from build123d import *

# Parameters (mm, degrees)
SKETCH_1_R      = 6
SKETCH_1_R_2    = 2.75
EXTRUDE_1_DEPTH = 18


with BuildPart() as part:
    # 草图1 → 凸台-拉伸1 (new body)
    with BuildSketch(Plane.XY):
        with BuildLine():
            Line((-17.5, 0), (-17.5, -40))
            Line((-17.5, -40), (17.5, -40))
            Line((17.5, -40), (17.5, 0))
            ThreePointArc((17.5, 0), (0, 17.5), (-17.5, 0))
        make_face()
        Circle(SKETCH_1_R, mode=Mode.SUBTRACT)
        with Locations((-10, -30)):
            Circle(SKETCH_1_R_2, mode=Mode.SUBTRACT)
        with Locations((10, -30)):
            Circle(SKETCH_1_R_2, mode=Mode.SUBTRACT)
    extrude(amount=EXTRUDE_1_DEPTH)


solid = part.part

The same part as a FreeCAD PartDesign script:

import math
import FreeCAD as App
import Part
import Sketcher

V = App.Vector
Q = App.Units.Quantity

doc = App.newDocument("Part")
body = doc.addObject("PartDesign::Body", "Body")

# Sketch on XY plane
sketch1 = body.newObject("Sketcher::SketchObject", "Sketch")
sketch1.AttachmentSupport = (doc.getObject("XY_Plane"), [""])
sketch1.MapMode = "FlatFace"
sketch1.addGeometry(Part.LineSegment(V(-17.5, 0, 0), V(-17.5, -40, 0)), False)
sketch1.addGeometry(Part.LineSegment(V(-17.5, -40, 0), V(17.5, -40, 0)), False)
sketch1.addGeometry(Part.LineSegment(V(17.5, -40, 0), V(17.5, 0, 0)), False)
sketch1.addGeometry(Part.ArcOfCircle(Part.Circle(V(0, 0, 0), V(0, 0, 1), 17.5), math.radians(0), math.radians(180)), False)
sketch1.addGeometry(Part.Circle(V(-10, -30, 0), V(0, 0, 1), 2.75), False)
sketch1.addGeometry(Part.Circle(V(10, -30, 0), V(0, 0, 1), 2.75), False)
sketch1.addGeometry(Part.Circle(V(0, 0, 0), V(0, 0, 1), 6), False)
sketch1.addConstraint(Sketcher.Constraint("Coincident", 0, 2, 1, 1))
sketch1.addConstraint(Sketcher.Constraint("Coincident", 1, 2, 2, 1))
sketch1.addConstraint(Sketcher.Constraint("Tangent", 2, 2, 3, 1))
sketch1.addConstraint(Sketcher.Constraint("Tangent", 3, 2, 0, 1))
sketch1.addConstraint(Sketcher.Constraint("Vertical", 0))
sketch1.addConstraint(Sketcher.Constraint("Horizontal", 1))
sketch1.addConstraint(Sketcher.Constraint("Vertical", 2))
sketch1.addConstraint(Sketcher.Constraint("Coincident", 3, 3, -1, 1))
sketch1.addConstraint(Sketcher.Constraint("Coincident", 6, 3, -1, 1))
sketch1.addConstraint(Sketcher.Constraint("Equal", 4, 5))
sketch1.addConstraint(Sketcher.Constraint("Symmetric", 4, 3, 5, 3, -2))
sketch1.addConstraint(Sketcher.Constraint("Diameter", 6, Q("12 mm")))
sketch1.addConstraint(Sketcher.Constraint("Diameter", 4, Q("5.5 mm")))
sketch1.addConstraint(Sketcher.Constraint("Radius", 3, Q("17.5 mm")))
sketch1.addConstraint(Sketcher.Constraint("DistanceY", 0, 2, 0, 1, Q("40 mm")))
sketch1.addConstraint(Sketcher.Constraint("DistanceX", 4, 3, -1, 1, Q("10 mm")))
sketch1.addConstraint(Sketcher.Constraint("DistanceY", 4, 3, -1, 1, Q("30 mm")))
pad1 = body.newObject("PartDesign::Pad", "Pad")
pad1.Profile = sketch1
pad1.Length = 18

doc.recompute()
